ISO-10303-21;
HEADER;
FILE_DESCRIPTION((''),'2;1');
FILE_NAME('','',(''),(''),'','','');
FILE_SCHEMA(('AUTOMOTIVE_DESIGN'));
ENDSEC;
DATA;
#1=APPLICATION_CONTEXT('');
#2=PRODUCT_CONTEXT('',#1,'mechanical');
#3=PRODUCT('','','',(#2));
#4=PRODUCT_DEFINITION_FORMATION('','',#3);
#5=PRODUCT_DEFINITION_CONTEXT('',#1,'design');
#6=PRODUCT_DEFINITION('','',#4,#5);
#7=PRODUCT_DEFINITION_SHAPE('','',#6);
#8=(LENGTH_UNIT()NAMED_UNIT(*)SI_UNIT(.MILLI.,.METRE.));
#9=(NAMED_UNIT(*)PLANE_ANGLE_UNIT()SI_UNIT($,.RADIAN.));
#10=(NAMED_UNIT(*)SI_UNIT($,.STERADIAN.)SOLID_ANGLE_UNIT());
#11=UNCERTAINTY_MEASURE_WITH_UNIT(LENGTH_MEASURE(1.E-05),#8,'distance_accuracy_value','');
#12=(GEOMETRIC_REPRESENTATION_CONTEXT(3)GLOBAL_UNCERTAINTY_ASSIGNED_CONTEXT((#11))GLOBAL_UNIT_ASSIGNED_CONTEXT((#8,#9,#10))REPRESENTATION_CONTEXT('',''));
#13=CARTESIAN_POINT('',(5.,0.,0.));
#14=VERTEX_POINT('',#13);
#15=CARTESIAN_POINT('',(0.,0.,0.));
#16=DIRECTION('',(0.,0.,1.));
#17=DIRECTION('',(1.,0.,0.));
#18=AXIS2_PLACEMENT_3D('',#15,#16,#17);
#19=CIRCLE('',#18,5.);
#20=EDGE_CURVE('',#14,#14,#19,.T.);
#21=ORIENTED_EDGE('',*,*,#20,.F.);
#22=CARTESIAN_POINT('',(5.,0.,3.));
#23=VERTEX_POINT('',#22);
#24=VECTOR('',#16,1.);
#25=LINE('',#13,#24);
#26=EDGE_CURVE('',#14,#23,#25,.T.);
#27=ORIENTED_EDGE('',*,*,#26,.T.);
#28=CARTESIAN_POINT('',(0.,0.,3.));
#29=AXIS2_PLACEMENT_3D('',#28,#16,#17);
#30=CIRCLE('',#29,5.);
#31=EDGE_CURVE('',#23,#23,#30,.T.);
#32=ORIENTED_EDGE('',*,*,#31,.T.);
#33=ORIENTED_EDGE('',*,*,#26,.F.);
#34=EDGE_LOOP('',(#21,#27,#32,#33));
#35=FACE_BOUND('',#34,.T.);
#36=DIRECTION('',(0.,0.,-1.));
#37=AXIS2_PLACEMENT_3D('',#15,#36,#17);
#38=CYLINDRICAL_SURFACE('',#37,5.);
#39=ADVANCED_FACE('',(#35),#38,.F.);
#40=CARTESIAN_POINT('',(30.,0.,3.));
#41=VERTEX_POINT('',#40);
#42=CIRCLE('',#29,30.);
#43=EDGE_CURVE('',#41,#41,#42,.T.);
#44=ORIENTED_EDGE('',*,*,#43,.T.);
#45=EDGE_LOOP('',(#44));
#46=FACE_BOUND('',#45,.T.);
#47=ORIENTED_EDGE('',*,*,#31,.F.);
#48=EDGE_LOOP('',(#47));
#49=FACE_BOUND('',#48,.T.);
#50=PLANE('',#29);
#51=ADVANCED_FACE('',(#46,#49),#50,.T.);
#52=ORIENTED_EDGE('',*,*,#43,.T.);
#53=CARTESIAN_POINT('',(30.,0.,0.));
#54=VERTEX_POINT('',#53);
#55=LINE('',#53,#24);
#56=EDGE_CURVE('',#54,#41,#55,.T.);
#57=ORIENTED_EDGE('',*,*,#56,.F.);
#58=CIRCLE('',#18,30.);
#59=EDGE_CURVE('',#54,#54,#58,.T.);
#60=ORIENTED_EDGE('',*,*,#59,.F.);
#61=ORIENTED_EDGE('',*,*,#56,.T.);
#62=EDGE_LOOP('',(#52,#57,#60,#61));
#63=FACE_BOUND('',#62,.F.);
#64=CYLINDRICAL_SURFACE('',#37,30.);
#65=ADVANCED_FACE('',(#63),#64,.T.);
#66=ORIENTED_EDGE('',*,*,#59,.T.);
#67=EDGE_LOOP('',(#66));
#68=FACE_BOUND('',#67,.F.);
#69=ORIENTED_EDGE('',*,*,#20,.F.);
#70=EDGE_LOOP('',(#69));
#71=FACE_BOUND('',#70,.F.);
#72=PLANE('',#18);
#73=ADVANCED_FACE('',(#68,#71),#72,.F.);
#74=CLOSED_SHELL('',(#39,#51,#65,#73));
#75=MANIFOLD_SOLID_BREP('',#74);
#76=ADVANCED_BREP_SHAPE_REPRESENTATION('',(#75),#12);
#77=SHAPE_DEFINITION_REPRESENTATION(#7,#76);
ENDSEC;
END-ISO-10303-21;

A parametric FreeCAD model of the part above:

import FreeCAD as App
import Part
import Sketcher
from FreeCAD import Vector
Q = App.Units.Quantity

doc = App.newDocument("Part")
params = doc.addObject("Spreadsheet::Sheet", "Params")
for row, (alias, value) in enumerate([
    ("sketch1_diameter", "60 mm"),
    ("sketch1_diameter2", "10 mm"),
    ("pad1_length", "3 mm"),
], start=1):
    params.set(f"A{row}", alias)
    params.set(f"B{row}", "=" + value)
    params.setAlias(f"B{row}", alias)

body = doc.addObject("PartDesign::Body", "Body")

sketch1 = doc.addObject("Sketcher::SketchObject", "Sketch")
body.addObject(sketch1)
sketch1.AttachmentSupport = (doc.XY_Plane, [""])
sketch1.MapMode = "FlatFace"
sketch1.addGeometry(Part.Circle(Vector(0, 0, 0), Vector(0, 0, 1), 30), False)
sketch1.addGeometry(Part.Circle(Vector(0, 0, 0), Vector(0, 0, 1), 5), False)
sketch1.addConstraint(Sketcher.Constraint("Coincident", 0, 3, -1, 1))
sketch1.addConstraint(Sketcher.Constraint("Coincident", 1, 3, -1, 1))
sketch1.addConstraint(Sketcher.Constraint("Diameter", 0, Q("60 mm")))
sketch1.addConstraint(Sketcher.Constraint("Diameter", 1, Q("10 mm")))
sketch1.setExpression("Constraints[2]", "Params.sketch1_diameter")
sketch1.setExpression("Constraints[3]", "Params.sketch1_diameter2")
pad1 = doc.addObject("PartDesign::Pad", "Pad")
body.addObject(pad1)
pad1.Profile = sketch1
pad1.setExpression("Length", "Params.pad1_length")

doc.recompute()
